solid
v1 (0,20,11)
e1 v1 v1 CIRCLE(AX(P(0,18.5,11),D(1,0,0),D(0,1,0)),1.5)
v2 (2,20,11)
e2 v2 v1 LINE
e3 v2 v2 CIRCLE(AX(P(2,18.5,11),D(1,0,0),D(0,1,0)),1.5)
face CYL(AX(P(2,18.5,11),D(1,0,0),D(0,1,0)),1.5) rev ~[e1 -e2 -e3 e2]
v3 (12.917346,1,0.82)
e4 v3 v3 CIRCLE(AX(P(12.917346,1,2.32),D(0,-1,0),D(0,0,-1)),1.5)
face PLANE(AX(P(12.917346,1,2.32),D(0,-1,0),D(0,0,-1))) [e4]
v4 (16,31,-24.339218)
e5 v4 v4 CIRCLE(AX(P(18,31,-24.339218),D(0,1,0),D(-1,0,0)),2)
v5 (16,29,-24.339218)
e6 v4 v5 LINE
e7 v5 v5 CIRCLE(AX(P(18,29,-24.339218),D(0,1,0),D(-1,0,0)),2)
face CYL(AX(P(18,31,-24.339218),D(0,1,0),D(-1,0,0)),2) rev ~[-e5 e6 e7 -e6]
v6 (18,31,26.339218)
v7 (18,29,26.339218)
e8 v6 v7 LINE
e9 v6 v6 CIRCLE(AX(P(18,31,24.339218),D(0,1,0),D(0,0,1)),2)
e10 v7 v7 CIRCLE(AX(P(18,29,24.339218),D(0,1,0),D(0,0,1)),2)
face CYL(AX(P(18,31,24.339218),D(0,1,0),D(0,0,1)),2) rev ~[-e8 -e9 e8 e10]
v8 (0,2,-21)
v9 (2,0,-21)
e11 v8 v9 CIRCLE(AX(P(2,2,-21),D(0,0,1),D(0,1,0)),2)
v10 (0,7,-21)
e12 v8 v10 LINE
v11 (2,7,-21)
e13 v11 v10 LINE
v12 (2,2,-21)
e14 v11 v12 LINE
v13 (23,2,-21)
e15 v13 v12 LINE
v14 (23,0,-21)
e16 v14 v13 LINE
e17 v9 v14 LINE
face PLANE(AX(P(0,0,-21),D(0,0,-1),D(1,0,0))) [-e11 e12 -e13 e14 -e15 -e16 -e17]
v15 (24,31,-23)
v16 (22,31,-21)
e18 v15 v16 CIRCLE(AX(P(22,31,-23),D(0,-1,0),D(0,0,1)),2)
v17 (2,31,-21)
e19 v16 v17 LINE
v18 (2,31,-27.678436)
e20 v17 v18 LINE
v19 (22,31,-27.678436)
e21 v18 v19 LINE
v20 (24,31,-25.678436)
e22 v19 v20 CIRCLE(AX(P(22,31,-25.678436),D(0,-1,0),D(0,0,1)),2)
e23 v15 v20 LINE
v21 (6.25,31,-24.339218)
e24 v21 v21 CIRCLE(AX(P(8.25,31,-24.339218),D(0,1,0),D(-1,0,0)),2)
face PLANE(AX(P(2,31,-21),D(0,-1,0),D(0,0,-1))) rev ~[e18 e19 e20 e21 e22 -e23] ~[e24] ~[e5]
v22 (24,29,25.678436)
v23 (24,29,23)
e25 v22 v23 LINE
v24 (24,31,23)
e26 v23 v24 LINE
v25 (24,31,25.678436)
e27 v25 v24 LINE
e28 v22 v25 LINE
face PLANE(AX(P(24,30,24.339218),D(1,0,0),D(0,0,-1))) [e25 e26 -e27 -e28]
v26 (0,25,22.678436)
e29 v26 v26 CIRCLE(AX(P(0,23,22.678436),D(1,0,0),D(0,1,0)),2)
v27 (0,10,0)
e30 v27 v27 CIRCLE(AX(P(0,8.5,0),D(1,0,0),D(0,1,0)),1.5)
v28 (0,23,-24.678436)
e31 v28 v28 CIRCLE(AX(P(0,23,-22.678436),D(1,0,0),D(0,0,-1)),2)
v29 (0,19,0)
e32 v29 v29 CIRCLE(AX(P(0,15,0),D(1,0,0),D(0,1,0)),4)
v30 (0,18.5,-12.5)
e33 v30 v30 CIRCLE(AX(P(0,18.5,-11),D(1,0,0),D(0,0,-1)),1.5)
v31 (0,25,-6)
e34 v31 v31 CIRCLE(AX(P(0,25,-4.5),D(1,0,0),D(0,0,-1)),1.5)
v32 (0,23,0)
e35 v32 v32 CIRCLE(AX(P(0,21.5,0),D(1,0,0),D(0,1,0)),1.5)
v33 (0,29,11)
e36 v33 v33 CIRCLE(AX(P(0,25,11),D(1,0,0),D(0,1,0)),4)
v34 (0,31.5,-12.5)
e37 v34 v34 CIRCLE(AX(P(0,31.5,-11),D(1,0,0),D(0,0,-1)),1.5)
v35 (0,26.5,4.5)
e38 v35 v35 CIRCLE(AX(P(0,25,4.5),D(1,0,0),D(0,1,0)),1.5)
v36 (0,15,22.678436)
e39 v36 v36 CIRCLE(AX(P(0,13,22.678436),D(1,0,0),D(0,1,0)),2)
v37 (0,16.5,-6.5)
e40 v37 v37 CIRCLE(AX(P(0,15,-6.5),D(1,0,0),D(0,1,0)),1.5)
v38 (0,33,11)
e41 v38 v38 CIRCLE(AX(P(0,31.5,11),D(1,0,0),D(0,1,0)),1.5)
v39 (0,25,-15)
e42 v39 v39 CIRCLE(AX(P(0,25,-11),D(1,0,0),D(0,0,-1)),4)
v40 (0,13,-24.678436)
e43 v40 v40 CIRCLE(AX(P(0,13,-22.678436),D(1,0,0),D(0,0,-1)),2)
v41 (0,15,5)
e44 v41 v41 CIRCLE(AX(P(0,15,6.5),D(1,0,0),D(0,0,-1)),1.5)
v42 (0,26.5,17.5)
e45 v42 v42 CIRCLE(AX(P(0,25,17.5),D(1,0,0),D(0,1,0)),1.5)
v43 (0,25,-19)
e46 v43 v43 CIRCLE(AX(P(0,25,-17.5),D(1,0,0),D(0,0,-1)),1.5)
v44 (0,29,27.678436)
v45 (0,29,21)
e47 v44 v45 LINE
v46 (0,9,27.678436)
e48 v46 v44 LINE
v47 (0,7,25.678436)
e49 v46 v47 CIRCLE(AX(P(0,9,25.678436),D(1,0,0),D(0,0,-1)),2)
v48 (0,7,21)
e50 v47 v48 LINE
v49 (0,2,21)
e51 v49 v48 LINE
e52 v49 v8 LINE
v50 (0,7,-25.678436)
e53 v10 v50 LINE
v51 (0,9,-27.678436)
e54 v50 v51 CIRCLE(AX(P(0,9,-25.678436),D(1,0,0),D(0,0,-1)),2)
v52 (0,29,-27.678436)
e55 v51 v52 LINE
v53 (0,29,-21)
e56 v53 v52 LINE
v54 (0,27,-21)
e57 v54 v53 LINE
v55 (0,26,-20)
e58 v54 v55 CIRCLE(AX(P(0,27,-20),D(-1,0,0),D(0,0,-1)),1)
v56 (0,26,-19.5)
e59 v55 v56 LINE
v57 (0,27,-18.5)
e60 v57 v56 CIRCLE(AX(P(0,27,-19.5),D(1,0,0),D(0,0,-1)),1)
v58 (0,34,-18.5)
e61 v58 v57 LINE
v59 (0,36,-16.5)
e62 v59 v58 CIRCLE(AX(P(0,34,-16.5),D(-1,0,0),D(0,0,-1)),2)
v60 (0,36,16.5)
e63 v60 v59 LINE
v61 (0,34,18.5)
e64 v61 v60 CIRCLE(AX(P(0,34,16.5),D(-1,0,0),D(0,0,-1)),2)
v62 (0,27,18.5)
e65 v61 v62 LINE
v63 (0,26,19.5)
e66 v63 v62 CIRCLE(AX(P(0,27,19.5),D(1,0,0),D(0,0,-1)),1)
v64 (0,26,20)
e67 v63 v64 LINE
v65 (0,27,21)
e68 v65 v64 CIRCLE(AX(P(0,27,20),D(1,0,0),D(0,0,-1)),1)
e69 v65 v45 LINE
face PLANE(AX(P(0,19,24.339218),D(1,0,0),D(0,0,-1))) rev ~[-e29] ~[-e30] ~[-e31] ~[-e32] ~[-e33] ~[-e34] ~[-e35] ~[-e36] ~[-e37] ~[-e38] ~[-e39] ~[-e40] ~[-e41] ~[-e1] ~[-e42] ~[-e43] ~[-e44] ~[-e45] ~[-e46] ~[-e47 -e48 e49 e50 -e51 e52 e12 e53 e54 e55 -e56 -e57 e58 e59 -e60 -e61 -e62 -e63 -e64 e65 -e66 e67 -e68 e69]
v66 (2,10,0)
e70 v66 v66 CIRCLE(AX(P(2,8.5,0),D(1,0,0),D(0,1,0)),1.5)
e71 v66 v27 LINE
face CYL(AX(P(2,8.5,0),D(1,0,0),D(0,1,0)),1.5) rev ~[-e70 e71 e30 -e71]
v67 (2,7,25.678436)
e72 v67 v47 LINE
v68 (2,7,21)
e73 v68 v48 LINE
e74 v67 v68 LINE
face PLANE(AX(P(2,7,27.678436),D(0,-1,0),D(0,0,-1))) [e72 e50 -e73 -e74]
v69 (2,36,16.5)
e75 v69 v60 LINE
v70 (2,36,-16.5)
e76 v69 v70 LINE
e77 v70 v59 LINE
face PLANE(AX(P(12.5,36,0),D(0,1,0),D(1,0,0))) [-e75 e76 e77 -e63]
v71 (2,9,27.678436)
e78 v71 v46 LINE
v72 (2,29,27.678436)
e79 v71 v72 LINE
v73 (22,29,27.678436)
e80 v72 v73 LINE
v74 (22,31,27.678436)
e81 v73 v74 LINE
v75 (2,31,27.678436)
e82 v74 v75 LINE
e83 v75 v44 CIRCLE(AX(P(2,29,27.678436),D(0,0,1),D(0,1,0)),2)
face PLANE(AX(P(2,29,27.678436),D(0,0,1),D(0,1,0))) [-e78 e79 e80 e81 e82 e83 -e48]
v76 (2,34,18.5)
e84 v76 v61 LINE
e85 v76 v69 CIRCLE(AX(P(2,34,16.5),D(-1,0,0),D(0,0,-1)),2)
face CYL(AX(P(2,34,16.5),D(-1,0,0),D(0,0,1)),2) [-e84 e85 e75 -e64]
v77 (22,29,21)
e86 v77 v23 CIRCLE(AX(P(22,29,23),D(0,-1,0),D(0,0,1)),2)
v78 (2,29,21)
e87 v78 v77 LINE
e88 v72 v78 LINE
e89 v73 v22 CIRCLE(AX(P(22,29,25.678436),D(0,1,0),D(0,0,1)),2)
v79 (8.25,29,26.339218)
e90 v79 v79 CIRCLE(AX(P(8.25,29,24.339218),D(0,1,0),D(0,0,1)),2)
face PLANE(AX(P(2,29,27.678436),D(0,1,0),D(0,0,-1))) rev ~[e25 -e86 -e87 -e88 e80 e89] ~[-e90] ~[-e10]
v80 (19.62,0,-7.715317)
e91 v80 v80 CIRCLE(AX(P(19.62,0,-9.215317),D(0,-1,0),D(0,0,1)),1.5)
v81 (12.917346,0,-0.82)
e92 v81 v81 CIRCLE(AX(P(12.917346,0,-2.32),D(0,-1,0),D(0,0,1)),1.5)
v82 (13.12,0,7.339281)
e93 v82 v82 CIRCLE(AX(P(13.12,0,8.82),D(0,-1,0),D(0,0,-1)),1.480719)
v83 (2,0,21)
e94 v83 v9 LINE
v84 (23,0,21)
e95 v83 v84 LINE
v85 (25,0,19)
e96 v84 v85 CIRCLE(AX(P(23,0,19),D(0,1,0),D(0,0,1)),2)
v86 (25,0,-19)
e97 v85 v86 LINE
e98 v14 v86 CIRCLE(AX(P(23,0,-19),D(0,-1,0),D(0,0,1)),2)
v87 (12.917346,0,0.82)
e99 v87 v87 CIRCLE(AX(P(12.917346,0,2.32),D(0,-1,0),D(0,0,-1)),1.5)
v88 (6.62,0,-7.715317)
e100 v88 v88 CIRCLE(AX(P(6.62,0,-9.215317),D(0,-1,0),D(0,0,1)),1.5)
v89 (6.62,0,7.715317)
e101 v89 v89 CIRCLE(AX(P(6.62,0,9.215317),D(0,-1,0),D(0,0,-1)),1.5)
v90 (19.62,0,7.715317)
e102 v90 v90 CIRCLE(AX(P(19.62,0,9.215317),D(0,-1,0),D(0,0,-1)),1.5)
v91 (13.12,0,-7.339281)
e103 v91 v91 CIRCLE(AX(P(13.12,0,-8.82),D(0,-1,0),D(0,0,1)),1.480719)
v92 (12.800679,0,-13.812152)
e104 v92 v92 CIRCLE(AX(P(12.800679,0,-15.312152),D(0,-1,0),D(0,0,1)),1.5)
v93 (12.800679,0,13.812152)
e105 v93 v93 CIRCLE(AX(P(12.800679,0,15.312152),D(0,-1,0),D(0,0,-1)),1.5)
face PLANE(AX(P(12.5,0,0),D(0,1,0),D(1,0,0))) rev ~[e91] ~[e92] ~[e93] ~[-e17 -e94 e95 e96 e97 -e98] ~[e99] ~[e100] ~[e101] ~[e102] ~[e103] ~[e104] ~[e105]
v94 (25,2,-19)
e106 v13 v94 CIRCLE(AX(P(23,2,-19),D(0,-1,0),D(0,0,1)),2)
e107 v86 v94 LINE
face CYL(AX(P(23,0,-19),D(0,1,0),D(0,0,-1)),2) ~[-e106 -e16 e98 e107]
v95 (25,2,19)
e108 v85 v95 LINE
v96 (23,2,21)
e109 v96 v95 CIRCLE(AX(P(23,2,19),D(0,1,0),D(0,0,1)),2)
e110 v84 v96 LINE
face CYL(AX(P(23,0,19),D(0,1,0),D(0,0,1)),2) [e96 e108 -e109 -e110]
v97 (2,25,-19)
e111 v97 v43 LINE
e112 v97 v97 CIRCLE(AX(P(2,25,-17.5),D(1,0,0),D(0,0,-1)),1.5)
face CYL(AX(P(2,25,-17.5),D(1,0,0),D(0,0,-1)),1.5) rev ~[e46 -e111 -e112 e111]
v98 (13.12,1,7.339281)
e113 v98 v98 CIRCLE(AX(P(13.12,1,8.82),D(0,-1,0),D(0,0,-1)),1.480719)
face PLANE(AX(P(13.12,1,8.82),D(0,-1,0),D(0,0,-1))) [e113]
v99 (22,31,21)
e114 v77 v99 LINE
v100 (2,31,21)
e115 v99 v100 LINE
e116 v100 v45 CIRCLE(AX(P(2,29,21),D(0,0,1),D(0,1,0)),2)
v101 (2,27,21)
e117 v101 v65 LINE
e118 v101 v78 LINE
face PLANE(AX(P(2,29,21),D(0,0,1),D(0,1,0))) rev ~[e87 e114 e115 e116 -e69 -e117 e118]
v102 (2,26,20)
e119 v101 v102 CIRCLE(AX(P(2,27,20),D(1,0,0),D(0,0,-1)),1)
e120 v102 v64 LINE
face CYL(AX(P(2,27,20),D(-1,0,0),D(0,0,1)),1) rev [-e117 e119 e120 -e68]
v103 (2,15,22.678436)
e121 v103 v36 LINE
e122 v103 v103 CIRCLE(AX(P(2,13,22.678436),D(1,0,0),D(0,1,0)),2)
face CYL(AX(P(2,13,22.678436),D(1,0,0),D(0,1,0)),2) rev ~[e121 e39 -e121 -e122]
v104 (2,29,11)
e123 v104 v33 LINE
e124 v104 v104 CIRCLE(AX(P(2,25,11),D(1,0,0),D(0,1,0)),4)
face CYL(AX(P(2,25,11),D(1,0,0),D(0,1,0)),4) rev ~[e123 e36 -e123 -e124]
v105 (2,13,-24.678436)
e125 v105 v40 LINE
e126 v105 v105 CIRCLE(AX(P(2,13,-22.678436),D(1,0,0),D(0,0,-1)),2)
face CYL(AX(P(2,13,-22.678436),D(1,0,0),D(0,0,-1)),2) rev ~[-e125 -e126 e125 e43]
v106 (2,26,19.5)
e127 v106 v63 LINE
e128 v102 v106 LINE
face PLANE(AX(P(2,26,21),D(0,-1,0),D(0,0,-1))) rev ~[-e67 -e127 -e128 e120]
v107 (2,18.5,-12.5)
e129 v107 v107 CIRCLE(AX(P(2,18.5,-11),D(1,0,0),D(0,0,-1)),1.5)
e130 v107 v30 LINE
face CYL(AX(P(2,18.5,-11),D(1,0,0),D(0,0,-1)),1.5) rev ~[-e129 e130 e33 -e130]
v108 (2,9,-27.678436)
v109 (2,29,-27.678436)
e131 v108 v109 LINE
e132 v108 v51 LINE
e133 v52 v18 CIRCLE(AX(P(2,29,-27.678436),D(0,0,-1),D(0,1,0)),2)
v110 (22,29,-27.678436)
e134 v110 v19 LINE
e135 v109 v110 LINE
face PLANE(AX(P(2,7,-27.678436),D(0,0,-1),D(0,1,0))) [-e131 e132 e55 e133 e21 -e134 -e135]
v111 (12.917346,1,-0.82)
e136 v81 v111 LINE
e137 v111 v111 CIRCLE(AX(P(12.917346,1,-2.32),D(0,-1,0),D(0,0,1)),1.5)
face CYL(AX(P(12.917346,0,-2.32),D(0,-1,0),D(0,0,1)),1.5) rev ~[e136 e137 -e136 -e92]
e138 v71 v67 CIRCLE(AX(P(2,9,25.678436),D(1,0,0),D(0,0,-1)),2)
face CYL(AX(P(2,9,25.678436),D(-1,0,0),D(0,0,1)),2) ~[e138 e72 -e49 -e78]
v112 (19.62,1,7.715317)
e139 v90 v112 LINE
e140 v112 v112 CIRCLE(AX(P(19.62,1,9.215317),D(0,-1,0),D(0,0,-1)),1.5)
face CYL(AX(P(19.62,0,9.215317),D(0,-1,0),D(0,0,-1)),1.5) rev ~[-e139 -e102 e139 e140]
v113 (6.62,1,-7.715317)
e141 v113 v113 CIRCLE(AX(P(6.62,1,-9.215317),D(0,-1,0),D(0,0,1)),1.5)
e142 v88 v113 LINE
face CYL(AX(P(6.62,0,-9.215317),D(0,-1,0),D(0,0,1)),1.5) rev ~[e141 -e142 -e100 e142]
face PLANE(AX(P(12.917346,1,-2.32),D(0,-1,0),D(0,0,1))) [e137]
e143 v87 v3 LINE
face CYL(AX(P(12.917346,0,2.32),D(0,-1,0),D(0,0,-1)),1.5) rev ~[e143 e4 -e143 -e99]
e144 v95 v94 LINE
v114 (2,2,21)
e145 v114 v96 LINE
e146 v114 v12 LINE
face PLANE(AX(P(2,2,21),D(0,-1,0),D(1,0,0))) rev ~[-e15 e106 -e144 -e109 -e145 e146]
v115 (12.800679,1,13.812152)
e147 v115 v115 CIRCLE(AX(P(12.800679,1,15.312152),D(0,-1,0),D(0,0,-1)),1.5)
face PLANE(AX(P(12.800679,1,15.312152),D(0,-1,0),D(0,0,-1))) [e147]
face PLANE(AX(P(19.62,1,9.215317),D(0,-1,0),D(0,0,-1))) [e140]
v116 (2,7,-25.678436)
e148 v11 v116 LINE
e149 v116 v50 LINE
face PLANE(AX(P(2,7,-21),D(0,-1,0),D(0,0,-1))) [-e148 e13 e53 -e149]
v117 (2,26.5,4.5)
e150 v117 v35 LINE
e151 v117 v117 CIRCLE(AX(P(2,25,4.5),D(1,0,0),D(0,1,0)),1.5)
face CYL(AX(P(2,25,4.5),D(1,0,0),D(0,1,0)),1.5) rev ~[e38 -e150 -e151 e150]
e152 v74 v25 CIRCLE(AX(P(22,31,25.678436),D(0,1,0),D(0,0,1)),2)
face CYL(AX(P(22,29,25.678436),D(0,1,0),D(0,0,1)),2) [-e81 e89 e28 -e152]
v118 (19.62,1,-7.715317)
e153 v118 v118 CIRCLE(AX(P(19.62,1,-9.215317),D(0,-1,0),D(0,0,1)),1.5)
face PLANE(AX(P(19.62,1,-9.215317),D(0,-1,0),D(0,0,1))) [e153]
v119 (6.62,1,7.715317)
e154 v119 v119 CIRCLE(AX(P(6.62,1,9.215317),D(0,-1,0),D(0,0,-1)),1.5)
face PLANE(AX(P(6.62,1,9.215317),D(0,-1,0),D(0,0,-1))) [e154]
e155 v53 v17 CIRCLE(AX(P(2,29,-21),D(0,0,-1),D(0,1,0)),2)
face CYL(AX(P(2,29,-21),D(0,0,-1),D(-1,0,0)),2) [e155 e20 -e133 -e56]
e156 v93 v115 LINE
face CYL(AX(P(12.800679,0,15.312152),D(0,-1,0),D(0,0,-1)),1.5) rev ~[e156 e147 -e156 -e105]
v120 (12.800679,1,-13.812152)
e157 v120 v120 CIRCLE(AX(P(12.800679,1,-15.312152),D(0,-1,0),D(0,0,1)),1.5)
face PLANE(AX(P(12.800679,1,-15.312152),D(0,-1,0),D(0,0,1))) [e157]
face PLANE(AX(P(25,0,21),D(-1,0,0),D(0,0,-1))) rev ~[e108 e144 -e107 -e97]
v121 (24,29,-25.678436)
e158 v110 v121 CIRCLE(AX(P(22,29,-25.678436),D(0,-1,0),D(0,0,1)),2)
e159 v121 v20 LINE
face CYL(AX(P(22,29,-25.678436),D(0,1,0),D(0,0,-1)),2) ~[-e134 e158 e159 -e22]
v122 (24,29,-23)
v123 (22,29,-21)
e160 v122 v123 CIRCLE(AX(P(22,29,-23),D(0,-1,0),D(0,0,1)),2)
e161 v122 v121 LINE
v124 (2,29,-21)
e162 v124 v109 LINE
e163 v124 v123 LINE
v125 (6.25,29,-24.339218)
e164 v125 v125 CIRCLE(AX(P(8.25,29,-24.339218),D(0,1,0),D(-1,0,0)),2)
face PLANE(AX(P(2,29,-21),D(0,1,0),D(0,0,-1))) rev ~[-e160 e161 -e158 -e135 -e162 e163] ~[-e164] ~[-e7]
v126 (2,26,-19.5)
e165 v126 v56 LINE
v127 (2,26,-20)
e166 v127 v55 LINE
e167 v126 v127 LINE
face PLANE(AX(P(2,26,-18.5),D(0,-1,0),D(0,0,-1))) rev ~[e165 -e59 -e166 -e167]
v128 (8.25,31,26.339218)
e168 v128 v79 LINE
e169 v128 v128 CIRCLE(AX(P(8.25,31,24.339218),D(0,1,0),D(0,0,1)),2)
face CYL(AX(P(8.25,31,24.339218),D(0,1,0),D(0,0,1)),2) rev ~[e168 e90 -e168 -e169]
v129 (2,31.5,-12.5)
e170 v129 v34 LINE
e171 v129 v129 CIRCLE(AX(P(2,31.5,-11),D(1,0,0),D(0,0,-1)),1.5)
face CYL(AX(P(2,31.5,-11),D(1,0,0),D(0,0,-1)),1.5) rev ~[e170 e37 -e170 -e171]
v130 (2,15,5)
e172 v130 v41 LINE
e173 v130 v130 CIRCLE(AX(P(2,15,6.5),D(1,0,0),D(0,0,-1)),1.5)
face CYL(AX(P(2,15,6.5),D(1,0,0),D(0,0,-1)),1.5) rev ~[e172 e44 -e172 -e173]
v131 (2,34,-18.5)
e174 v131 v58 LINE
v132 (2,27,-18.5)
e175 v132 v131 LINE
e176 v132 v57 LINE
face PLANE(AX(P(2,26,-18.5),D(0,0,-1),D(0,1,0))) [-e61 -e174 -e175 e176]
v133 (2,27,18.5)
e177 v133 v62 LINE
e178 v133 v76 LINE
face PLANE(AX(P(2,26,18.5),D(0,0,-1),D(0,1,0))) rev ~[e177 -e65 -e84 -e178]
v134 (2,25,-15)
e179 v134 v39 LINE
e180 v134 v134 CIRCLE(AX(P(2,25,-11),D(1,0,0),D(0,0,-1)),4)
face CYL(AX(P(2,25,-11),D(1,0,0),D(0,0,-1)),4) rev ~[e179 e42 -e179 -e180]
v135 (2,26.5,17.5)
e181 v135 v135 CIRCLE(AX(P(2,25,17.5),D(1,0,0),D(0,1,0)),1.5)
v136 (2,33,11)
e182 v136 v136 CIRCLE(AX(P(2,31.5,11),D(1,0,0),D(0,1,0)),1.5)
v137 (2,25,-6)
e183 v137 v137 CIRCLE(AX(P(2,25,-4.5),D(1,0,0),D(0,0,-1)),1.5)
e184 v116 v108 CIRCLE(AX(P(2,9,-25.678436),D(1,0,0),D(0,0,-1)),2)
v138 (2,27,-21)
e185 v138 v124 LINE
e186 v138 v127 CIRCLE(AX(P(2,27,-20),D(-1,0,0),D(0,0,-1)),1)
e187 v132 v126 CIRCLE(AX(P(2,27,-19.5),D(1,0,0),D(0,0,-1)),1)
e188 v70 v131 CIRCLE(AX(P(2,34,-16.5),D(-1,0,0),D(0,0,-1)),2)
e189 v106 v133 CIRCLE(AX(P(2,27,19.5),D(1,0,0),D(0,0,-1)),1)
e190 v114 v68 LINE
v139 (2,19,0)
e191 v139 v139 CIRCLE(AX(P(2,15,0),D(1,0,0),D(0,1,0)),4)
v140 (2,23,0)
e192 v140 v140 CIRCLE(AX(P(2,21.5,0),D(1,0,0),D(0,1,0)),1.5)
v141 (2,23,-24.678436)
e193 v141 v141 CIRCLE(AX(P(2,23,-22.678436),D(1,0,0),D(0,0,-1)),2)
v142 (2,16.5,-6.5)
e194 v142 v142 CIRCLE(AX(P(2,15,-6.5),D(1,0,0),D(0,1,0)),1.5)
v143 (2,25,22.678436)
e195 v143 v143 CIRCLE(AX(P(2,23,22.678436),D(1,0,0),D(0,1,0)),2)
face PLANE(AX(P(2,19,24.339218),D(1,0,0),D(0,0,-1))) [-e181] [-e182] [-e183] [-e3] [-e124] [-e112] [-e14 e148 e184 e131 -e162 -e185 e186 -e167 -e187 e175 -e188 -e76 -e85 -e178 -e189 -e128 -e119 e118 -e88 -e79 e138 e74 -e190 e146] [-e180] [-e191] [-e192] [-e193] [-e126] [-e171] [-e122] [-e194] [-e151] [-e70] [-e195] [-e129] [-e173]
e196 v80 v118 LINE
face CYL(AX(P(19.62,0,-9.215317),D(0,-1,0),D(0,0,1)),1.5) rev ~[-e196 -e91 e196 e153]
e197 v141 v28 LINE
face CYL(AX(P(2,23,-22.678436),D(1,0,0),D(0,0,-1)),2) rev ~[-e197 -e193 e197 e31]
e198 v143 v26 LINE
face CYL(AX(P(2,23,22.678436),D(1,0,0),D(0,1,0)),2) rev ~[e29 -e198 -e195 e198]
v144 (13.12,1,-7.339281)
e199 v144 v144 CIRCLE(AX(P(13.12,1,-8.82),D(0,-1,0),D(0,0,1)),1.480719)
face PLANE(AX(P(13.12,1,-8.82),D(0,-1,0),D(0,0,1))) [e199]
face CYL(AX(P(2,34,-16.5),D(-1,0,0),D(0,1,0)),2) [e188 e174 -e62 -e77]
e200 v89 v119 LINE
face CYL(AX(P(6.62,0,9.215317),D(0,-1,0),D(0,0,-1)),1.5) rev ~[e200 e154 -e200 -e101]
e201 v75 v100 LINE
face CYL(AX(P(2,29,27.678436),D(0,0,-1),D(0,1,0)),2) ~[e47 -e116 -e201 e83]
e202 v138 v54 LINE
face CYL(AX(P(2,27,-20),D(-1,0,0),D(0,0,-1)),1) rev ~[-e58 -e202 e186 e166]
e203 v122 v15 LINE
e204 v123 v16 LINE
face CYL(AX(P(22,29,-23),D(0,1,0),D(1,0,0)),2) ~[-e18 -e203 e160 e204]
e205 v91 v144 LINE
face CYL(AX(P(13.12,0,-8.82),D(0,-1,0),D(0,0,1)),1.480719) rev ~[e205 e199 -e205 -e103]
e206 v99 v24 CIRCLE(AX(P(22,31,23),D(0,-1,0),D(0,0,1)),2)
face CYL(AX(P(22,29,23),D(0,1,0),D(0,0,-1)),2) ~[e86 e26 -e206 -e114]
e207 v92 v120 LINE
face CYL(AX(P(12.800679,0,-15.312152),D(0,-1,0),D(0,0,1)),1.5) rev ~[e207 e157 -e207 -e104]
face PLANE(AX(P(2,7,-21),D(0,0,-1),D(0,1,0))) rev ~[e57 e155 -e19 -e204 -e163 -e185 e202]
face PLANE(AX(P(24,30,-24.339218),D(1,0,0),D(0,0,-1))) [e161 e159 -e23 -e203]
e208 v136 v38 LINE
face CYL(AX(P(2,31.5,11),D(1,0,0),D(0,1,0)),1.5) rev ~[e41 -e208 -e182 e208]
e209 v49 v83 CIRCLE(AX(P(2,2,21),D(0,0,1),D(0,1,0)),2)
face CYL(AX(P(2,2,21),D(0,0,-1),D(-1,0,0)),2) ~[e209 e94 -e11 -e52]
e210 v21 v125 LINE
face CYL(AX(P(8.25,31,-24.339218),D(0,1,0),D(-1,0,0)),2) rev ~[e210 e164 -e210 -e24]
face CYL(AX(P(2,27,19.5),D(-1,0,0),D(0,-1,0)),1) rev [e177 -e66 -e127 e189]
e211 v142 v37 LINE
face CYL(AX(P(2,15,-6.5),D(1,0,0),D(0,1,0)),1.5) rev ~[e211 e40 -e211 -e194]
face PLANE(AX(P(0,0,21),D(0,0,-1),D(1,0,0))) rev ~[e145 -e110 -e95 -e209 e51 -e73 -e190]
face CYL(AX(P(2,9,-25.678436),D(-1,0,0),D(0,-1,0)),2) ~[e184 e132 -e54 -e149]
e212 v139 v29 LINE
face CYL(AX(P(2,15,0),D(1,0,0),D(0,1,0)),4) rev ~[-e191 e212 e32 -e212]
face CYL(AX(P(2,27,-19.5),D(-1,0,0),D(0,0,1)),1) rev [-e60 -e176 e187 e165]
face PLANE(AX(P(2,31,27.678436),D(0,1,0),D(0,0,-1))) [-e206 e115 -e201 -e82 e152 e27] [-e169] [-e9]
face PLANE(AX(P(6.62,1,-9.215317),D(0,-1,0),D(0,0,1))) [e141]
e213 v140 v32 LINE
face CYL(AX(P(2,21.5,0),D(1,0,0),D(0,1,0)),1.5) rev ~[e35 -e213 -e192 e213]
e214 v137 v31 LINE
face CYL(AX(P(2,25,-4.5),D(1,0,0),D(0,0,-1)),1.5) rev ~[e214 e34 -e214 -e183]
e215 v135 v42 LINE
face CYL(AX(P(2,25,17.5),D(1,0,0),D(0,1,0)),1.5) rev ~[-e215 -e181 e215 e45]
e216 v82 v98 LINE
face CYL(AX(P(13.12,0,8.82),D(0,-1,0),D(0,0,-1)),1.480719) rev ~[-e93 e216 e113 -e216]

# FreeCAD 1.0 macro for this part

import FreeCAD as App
import Part
import Sketcher
Q = App.Units.Quantity


def edges_at(feature, points):
    """Names of the edges that pass closest to the given points."""
    edges = feature.Shape.Edges
    near = lambda p: min(range(len(edges)), key=lambda i: edges[i].distToShape(Part.Vertex(*p))[0])
    return sorted({f"Edge{near(p) + 1}" for p in points})

doc = App.newDocument("Part")
params = doc.addObject("Spreadsheet::Sheet", "Params")
for row, (alias, value) in enumerate([
    ("sketch1_width", "25 mm"),
    ("sketch1_height", "42 mm"),
    ("pad1_length", "36 mm"),
    ("sketch2_width", "23 mm"),
    ("sketch2_height", "34 mm"),
    ("fillet_radius", "2 mm"),
    ("sketch3_width", "10 mm"),
    ("sketch3_height", "2.5 mm"),
    ("pocket2_length", "36 mm"),
    ("fillet2_radius", "1 mm"),
    ("fillet3_radius", "2 mm"),
    ("sketch4_width", "24 mm"),
    ("pad2_length", "2 mm"),
    ("fillet4_radius", "2 mm"),
    ("sketch5_width", "2 mm"),
    ("pad3_length", "22 mm"),
    ("fillet5_radius", "2 mm"),
    ("fillet6_radius", "2 mm"),
    ("fillet7_radius", "2 mm"),
    ("fillet8_radius", "1 mm"),
    ("sketch6_diameter", "4 mm"),
    ("sketch6_diameter2", "8 mm"),
    ("sketch6_diameter3", "3 mm"),
    ("pocket3_length", "22 mm"),
    ("sketch7_diameter", "4 mm"),
    ("pocket4_length", "22 mm"),
    ("sketch8_diameter", "3 mm"),
    ("pocket5_length", "1 mm"),
], start=1):
    params.set(f"A{row}", alias)
    params.set(f"B{row}", "=" + value)
    params.setAlias(f"B{row}", alias)

body = doc.addObject("PartDesign::Body", "Body")

# Sketch on XZ plane
sketch1 = body.newObject("Sketcher::SketchObject", "Sketch")
sketch1.AttachmentSupport = (doc.getObject("XZ_Plane"), [""])
sketch1.MapMode = "FlatFace"
sketch1.addGeometry(Part.LineSegment(App.Vector(0, -21, 0), App.Vector(0, 21, 0)), False)
sketch1.addGeometry(Part.LineSegment(App.Vector(0, 21, 0), App.Vector(25, 21, 0)), False)
sketch1.addGeometry(Part.LineSegment(App.Vector(25, 21, 0), App.Vector(25, -21, 0)), False)
sketch1.addGeometry(Part.LineSegment(App.Vector(25, -21, 0), App.Vector(0, -21, 0)), False)
sketch1.addConstraint(Sketcher.Constraint("Coincident", 0, 2, 1, 1))
sketch1.addConstraint(Sketcher.Constraint("Coincident", 1, 2, 2, 1))
sketch1.addConstraint(Sketcher.Constraint("Coincident", 2, 2, 3, 1))
sketch1.addConstraint(Sketcher.Constraint("Coincident", 3, 2, 0, 1))
sketch1.addConstraint(Sketcher.Constraint("Vertical", 0))
sketch1.addConstraint(Sketcher.Constraint("Horizontal", 1))
sketch1.addConstraint(Sketcher.Constraint("Vertical", 2))
sketch1.addConstraint(Sketcher.Constraint("Horizontal", 3))
sketch1.addConstraint(Sketcher.Constraint("Symmetric", 0, 2, 3, 2, -1, 1))
sketch1.addConstraint(Sketcher.Constraint("DistanceX", 1, 1, 1, 2, Q("25 mm")))
sketch1.addConstraint(Sketcher.Constraint("DistanceY", 0, 1, 0, 2, Q("42 mm")))
sketch1.setExpression("Constraints[9]", "Params.sketch1_width")
sketch1.setExpression("Constraints[10]", "Params.sketch1_height")
pad1 = body.newObject("PartDesign::Pad", "Pad")
pad1.Profile = sketch1
pad1.setExpression("Length", "Params.pad1_length")
pad1.Reversed = True

# Sketch on XY plane
sketch2 = body.newObject("Sketcher::SketchObject", "Sketch001")
sketch2.AttachmentSupport = (doc.getObject("XY_Plane"), [""])
sketch2.MapMode = "FlatFace"
sketch2.AttachmentOffset = App.Placement(App.Vector(0, 0, 21), App.Rotation())
sketch2.addGeometry(Part.LineSegment(App.Vector(2, 36, 0), App.Vector(2, 2, 0)), False)
sketch2.addGeometry(Part.LineSegment(App.Vector(2, 2, 0), App.Vector(25, 2, 0)), False)
sketch2.addGeometry(Part.LineSegment(App.Vector(25, 2, 0), App.Vector(25, 36, 0)), False)
sketch2.addGeometry(Part.LineSegment(App.Vector(25, 36, 0), App.Vector(2, 36, 0)), False)
sketch2.addConstraint(Sketcher.Constraint("Coincident", 0, 2, 1, 1))
sketch2.addConstraint(Sketcher.Constraint("Coincident", 1, 2, 2, 1))
sketch2.addConstraint(Sketcher.Constraint("Coincident", 2, 2, 3, 1))
sketch2.addConstraint(Sketcher.Constraint("Coincident", 3, 2, 0, 1))
sketch2.addConstraint(Sketcher.Constraint("Vertical", 0))
sketch2.addConstraint(Sketcher.Constraint("Horizontal", 1))
sketch2.addConstraint(Sketcher.Constraint("Vertical", 2))
sketch2.addConstraint(Sketcher.Constraint("Horizontal", 3))
sketch2.addConstraint(Sketcher.Constraint("DistanceX", 1, 1, 1, 2, Q("23 mm")))
sketch2.addConstraint(Sketcher.Constraint("DistanceY", 0, 2, 0, 1, Q("34 mm")))
sketch2.addConstraint(Sketcher.Constraint("DistanceX", -1, 1, 0, 2, Q("2 mm")))
sketch2.addConstraint(Sketcher.Constraint("DistanceY", -1, 1, 0, 2, Q("2 mm")))
sketch2.setExpression("Constraints[8]", "Params.sketch2_width")
sketch2.setExpression("Constraints[9]", "Params.sketch2_height")
pocket1 = body.newObject("PartDesign::Pocket", "Pocket")
pocket1.Profile = sketch2
pocket1.Type = "ThroughAll"
doc.recompute()

fillet = body.newObject("PartDesign::Fillet", "Fillet")
fillet.Base = (pocket1, edges_at(pocket1, [(25, 1, 21), (25, 1, -21)]))
fillet.setExpression("Radius", "Params.fillet_radius")

# Sketch on YZ plane
sketch3 = body.newObject("Sketcher::SketchObject", "Sketch002")
sketch3.AttachmentSupport = (doc.getObject("YZ_Plane"), [""])
sketch3.MapMode = "FlatFace"
sketch3.AttachmentOffset = App.Placement(App.Vector(0, 0, 2), App.Rotation())
sketch3.addGeometry(Part.LineSegment(App.Vector(36, 21, 0), App.Vector(26, 21, 0)), False)
sketch3.addGeometry(Part.LineSegment(App.Vector(26, 21, 0), App.Vector(26, 18.5, 0)), False)
sketch3.addGeometry(Part.LineSegment(App.Vector(26, 18.5, 0), App.Vector(36, 18.5, 0)), False)
sketch3.addGeometry(Part.LineSegment(App.Vector(36, 18.5, 0), App.Vector(36, 21, 0)), False)
sketch3.addGeometry(Part.LineSegment(App.Vector(36, -18.5, 0), App.Vector(26, -18.5, 0)), False)
sketch3.addGeometry(Part.LineSegment(App.Vector(26, -18.5, 0), App.Vector(26, -21, 0)), False)
sketch3.addGeometry(Part.LineSegment(App.Vector(26, -21, 0), App.Vector(36, -21, 0)), False)
sketch3.addGeometry(Part.LineSegment(App.Vector(36, -21, 0), App.Vector(36, -18.5, 0)), False)
sketch3.addConstraint(Sketcher.Constraint("Coincident", 0, 2, 1, 1))
sketch3.addConstraint(Sketcher.Constraint("Coincident", 1, 2, 2, 1))
sketch3.addConstraint(Sketcher.Constraint("Coincident", 2, 2, 3, 1))
sketch3.addConstraint(Sketcher.Constraint("Coincident", 3, 2, 0, 1))
sketch3.addConstraint(Sketcher.Constraint("Coincident", 4, 2, 5, 1))
sketch3.addConstraint(Sketcher.Constraint("Coincident", 5, 2, 6, 1))
sketch3.addConstraint(Sketcher.Constraint("Coincident", 6, 2, 7, 1))
sketch3.addConstraint(Sketcher.Constraint("Coincident", 7, 2, 4, 1))
sketch3.addConstraint(Sketcher.Constraint("Horizontal", 0))
sketch3.addConstraint(Sketcher.Constraint("Vertical", 1))
sketch3.addConstraint(Sketcher.Constraint("Horizontal", 2))
sketch3.addConstraint(Sketcher.Constraint("Vertical", 3))
sketch3.addConstraint(Sketcher.Constraint("Horizontal", 4))
sketch3.addConstraint(Sketcher.Constraint("Vertical", 5))
sketch3.addConstraint(Sketcher.Constraint("Horizontal", 6))
sketch3.addConstraint(Sketcher.Constraint("Vertical", 7))
sketch3.addConstraint(Sketcher.Constraint("Symmetric", 1, 2, 4, 2, -1))
sketch3.addConstraint(Sketcher.Constraint("Symmetric", 3, 2, 6, 2, -1))
sketch3.addConstraint(Sketcher.Constraint("DistanceX", 0, 2, 0, 1, Q("10 mm")))
sketch3.addConstraint(Sketcher.Constraint("DistanceY", 1, 2, 1, 1, Q("2.5 mm")))
sketch3.addConstraint(Sketcher.Constraint("DistanceX", -1, 1, 0, 2, Q("26 mm")))
sketch3.addConstraint(Sketcher.Constraint("DistanceY", -1, 1, 0, 2, Q("21 mm")))
sketch3.setExpression("Constraints[18]", "Params.sketch3_width")
sketch3.setExpression("Constraints[19]", "Params.sketch3_height")
pocket2 = body.newObject("PartDesign::Pocket", "Pocket001")
pocket2.Profile = sketch3
pocket2.setExpression("Length", "Params.pocket2_length")
doc.recompute()

fillet2 = body.newObject("PartDesign::Fillet", "Fillet001")
fillet2.Base = (pocket2, edges_at(pocket2, [(1, 26, 18.5), (1, 26, -18.5)]))
fillet2.setExpression("Radius", "Params.fillet2_radius")
doc.recompute()

fillet3 = body.newObject("PartDesign::Fillet", "Fillet002")
fillet3.Base = (fillet2, edges_at(fillet2, [(1, 36, 18.5), (1, 36, -18.5)]))
fillet3.setExpression("Radius", "Params.fillet3_radius")

# Sketch on YZ plane
sketch4 = body.newObject("Sketcher::SketchObject", "Sketch003")
sketch4.AttachmentSupport = (doc.getObject("YZ_Plane"), [""])
sketch4.MapMode = "FlatFace"
sketch4.AttachmentOffset = App.Placement(App.Vector(0, 0, 2), App.Rotation())
sketch4.addGeometry(Part.LineSegment(App.Vector(31, 27.678436, 0), App.Vector(7, 27.678436, 0)), False)
sketch4.addGeometry(Part.LineSegment(App.Vector(7, 27.678436, 0), App.Vector(7, 21, 0)), False)
sketch4.addGeometry(Part.LineSegment(App.Vector(7, 21, 0), App.Vector(31, 21, 0)), False)
sketch4.addGeometry(Part.LineSegment(App.Vector(31, 21, 0), App.Vector(31, 27.678436, 0)), False)
sketch4.addGeometry(Part.LineSegment(App.Vector(31, -21, 0), App.Vector(7, -21, 0)), False)
sketch4.addGeometry(Part.LineSegment(App.Vector(7, -21, 0), App.Vector(7, -27.678436, 0)), False)
sketch4.addGeometry(Part.LineSegment(App.Vector(7, -27.678436, 0), App.Vector(31, -27.678436, 0)), False)
sketch4.addGeometry(Part.LineSegment(App.Vector(31, -27.678436, 0), App.Vector(31, -21, 0)), False)
sketch4.addConstraint(Sketcher.Constraint("Coincident", 0, 2, 1, 1))
sketch4.addConstraint(Sketcher.Constraint("Coincident", 1, 2, 2, 1))
sketch4.addConstraint(Sketcher.Constraint("Coincident", 2, 2, 3, 1))
sketch4.addConstraint(Sketcher.Constraint("Coincident", 3, 2, 0, 1))
sketch4.addConstraint(Sketcher.Constraint("Coincident", 4, 2, 5, 1))
sketch4.addConstraint(Sketcher.Constraint("Coincident", 5, 2, 6, 1))
sketch4.addConstraint(Sketcher.Constraint("Coincident", 6, 2, 7, 1))
sketch4.addConstraint(Sketcher.Constraint("Coincident", 7, 2, 4, 1))
sketch4.addConstraint(Sketcher.Constraint("Horizontal", 0))
sketch4.addConstraint(Sketcher.Constraint("Vertical", 1))
sketch4.addConstraint(Sketcher.Constraint("Horizontal", 2))
sketch4.addConstraint(Sketcher.Constraint("Vertical", 3))
sketch4.addConstraint(Sketcher.Constraint("Horizontal", 4))
sketch4.addConstraint(Sketcher.Constraint("Vertical", 5))
sketch4.addConstraint(Sketcher.Constraint("Horizontal", 6))
sketch4.addConstraint(Sketcher.Constraint("Vertical", 7))
sketch4.addConstraint(Sketcher.Constraint("Symmetric", 1, 2, 4, 2, -1))
sketch4.addConstraint(Sketcher.Constraint("Symmetric", 3, 2, 6, 2, -1))
sketch4.addConstraint(Sketcher.Constraint("DistanceX", 0, 2, 0, 1, Q("24 mm")))
sketch4.addConstraint(Sketcher.Constraint("DistanceX", -1, 1, 0, 2, Q("7 mm")))
sketch4.addConstraint(Sketcher.Constraint("DistanceY", -1, 1, 1, 2, Q("21 mm")))
sketch4.addConstraint(Sketcher.Constraint("DistanceY", 1, 2, 1, 1, Q("6.678436 mm")))
sketch4.setExpression("Constraints[18]", "Params.sketch4_width")
pad2 = body.newObject("PartDesign::Pad", "Pad001")
pad2.Profile = sketch4
pad2.setExpression("Length", "Params.pad2_length")
pad2.Reversed = True
doc.recompute()

fillet4 = body.newObject("PartDesign::Fillet", "Fillet003")
fillet4.Base = (pad2, edges_at(pad2, [(1, 7, 27.678), (1, 7, -27.678)]))
fillet4.setExpression("Radius", "Params.fillet4_radius")

# Sketch on YZ plane
sketch5 = body.newObject("Sketcher::SketchObject", "Sketch004")
sketch5.AttachmentSupport = (doc.getObject("YZ_Plane"), [""])
sketch5.MapMode = "FlatFace"
sketch5.AttachmentOffset = App.Placement(App.Vector(0, 0, 2), App.Rotation())
sketch5.addGeometry(Part.LineSegment(App.Vector(31, 27.678436, 0), App.Vector(29, 27.678436, 0)), False)
sketch5.addGeometry(Part.LineSegment(App.Vector(29, 27.678436, 0), App.Vector(29, 21, 0)), False)
sketch5.addGeometry(Part.LineSegment(App.Vector(29, 21, 0), App.Vector(31, 21, 0)), False)
sketch5.addGeometry(Part.LineSegment(App.Vector(31, 21, 0), App.Vector(31, 27.678436, 0)), False)
sketch5.addGeometry(Part.LineSegment(App.Vector(31, -21, 0), App.Vector(29, -21, 0)), False)
sketch5.addGeometry(Part.LineSegment(App.Vector(29, -21, 0), App.Vector(29, -27.678436, 0)), False)
sketch5.addGeometry(Part.LineSegment(App.Vector(29, -27.678436, 0), App.Vector(31, -27.678436, 0)), False)
sketch5.addGeometry(Part.LineSegment(App.Vector(31, -27.678436, 0), App.Vector(31, -21, 0)), False)
sketch5.addConstraint(Sketcher.Constraint("Coincident", 0, 2, 1, 1))
sketch5.addConstraint(Sketcher.Constraint("Coincident", 1, 2, 2, 1))
sketch5.addConstraint(Sketcher.Constraint("Coincident", 2, 2, 3, 1))
sketch5.addConstraint(Sketcher.Constraint("Coincident", 3, 2, 0, 1))
sketch5.addConstraint(Sketcher.Constraint("Coincident", 4, 2, 5, 1))
sketch5.addConstraint(Sketcher.Constraint("Coincident", 5, 2, 6, 1))
sketch5.addConstraint(Sketcher.Constraint("Coincident", 6, 2, 7, 1))
sketch5.addConstraint(Sketcher.Constraint("Coincident", 7, 2, 4, 1))
sketch5.addConstraint(Sketcher.Constraint("Horizontal", 0))
sketch5.addConstraint(Sketcher.Constraint("Vertical", 1))
sketch5.addConstraint(Sketcher.Constraint("Horizontal", 2))
sketch5.addConstraint(Sketcher.Constraint("Vertical", 3))
sketch5.addConstraint(Sketcher.Constraint("Horizontal", 4))
sketch5.addConstraint(Sketcher.Constraint("Vertical", 5))
sketch5.addConstraint(Sketcher.Constraint("Horizontal", 6))
sketch5.addConstraint(Sketcher.Constraint("Vertical", 7))
sketch5.addConstraint(Sketcher.Constraint("Symmetric", 1, 2, 4, 2, -1))
sketch5.addConstraint(Sketcher.Constraint("Symmetric", 3, 2, 6, 2, -1))
sketch5.addConstraint(Sketcher.Constraint("DistanceX", 0, 2, 0, 1, Q("2 mm")))
sketch5.addConstraint(Sketcher.Constraint("DistanceX", -1, 1, 0, 2, Q("29 mm")))
sketch5.addConstraint(Sketcher.Constraint("DistanceY", -1, 1, 1, 2, Q("21 mm")))
sketch5.addConstraint(Sketcher.Constraint("DistanceY", 1, 2, 1, 1, Q("6.678436 mm")))
sketch5.setExpression("Constraints[18]", "Params.sketch5_width")
pad3 = body.newObject("PartDesign::Pad", "Pad002")
pad3.Profile = sketch5
pad3.setExpression("Length", "Params.pad3_length")
doc.recompute()

fillet5 = body.newObject("PartDesign::Fillet", "Fillet004")
fillet5.Base = (pad3, edges_at(pad3, [
    (24, 30, 27.678),
    (24, 30, 21),
    (24, 30, -21),
    (24, 30, -27.678),
]))
fillet5.setExpression("Radius", "Params.fillet5_radius")
doc.recompute()

fillet6 = body.newObject("PartDesign::Fillet", "Fillet005")
fillet6.Base = (fillet5, edges_at(fillet5, [(0, 31, 24.339), (0, 31, -24.339)]))
fillet6.setExpression("Radius", "Params.fillet6_radius")
doc.recompute()

fillet7 = body.newObject("PartDesign::Fillet", "Fillet006")
fillet7.Base = (fillet6, edges_at(fillet6, [(0, 0, 0)]))
fillet7.setExpression("Radius", "Params.fillet7_radius")
doc.recompute()

fillet8 = body.newObject("PartDesign::Fillet", "Fillet007")
fillet8.Base = (fillet7, edges_at(fillet7, [(1, 26, 21), (1, 26, -21)]))
fillet8.setExpression("Radius", "Params.fillet8_radius")

# Sketch on YZ plane
sketch6 = body.newObject("Sketcher::SketchObject", "Sketch005")
sketch6.AttachmentSupport = (doc.getObject("YZ_Plane"), [""])
sketch6.MapMode = "FlatFace"
sketch6.AttachmentOffset = App.Placement(App.Vector(0, 0, 2), App.Rotation())
sketch6.addGeometry(Part.Circle(App.Vector(13, 22.678436, 0), App.Vector(0, 0, 1), 2), False)
sketch6.addGeometry(Part.Circle(App.Vector(23, 22.678436, 0), App.Vector(0, 0, 1), 2), False)
sketch6.addGeometry(Part.Circle(App.Vector(13, -22.678436, 0), App.Vector(0, 0, 1), 2), False)
sketch6.addGeometry(Part.Circle(App.Vector(23, -22.678436, 0), App.Vector(0, 0, 1), 2), False)
sketch6.addGeometry(Part.Circle(App.Vector(25, 11, 0), App.Vector(0, 0, 1), 4), False)
sketch6.addGeometry(Part.Circle(App.Vector(31.5, 11, 0), App.Vector(0, 0, 1), 1.5), False)
sketch6.addGeometry(Part.Circle(App.Vector(18.5, 11, 0), App.Vector(0, 0, 1), 1.5), False)
sketch6.addGeometry(Part.Circle(App.Vector(25, 17.5, 0), App.Vector(0, 0, 1), 1.5), False)
sketch6.addGeometry(Part.Circle(App.Vector(25, 4.5, 0), App.Vector(0, 0, 1), 1.5), False)
sketch6.addGeometry(Part.Circle(App.Vector(18.5, -11, 0), App.Vector(0, 0, 1), 1.5), False)
sketch6.addGeometry(Part.Circle(App.Vector(25, -4.5, 0), App.Vector(0, 0, 1), 1.5), False)
sketch6.addGeometry(Part.Circle(App.Vector(25, -17.5, 0), App.Vector(0, 0, 1), 1.5), False)
sketch6.addGeometry(Part.Circle(App.Vector(31.5, -11, 0), App.Vector(0, 0, 1), 1.5), False)
sketch6.addGeometry(Part.Circle(App.Vector(25, -11, 0), App.Vector(0, 0, 1), 4), False)
sketch6.addGeometry(Part.Circle(App.Vector(15, 0, 0), App.Vector(0, 0, 1), 4), False)
sketch6.addGeometry(Part.Circle(App.Vector(15, -6.5, 0), App.Vector(0, 0, 1), 1.5), False)
sketch6.addGeometry(Part.Circle(App.Vector(8.5, 0, 0), App.Vector(0, 0, 1), 1.5), False)
sketch6.addGeometry(Part.Circle(App.Vector(21.5, 0, 0), App.Vector(0, 0, 1), 1.5), False)
sketch6.addGeometry(Part.Circle(App.Vector(15, 6.5, 0), App.Vector(0, 0, 1), 1.5), False)
sketch6.addConstraint(Sketcher.Constraint("Equal", 0, 1))
sketch6.addConstraint(Sketcher.Constraint("Equal", 1, 2))
sketch6.addConstraint(Sketcher.Constraint("Equal", 2, 3))
sketch6.addConstraint(Sketcher.Constraint("Equal", 5, 6))
sketch6.addConstraint(Sketcher.Constraint("Equal", 6, 7))
sketch6.addConstraint(Sketcher.Constraint("Equal", 7, 8))
sketch6.addConstraint(Sketcher.Constraint("Equal", 8, 9))
sketch6.addConstraint(Sketcher.Constraint("Equal", 9, 10))
sketch6.addConstraint(Sketcher.Constraint("Equal", 10, 11))
sketch6.addConstraint(Sketcher.Constraint("Equal", 11, 12))
sketch6.addConstraint(Sketcher.Constraint("Equal", 4, 13))
sketch6.addConstraint(Sketcher.Constraint("Equal", 13, 14))
sketch6.addConstraint(Sketcher.Constraint("Equal", 12, 15))
sketch6.addConstraint(Sketcher.Constraint("Equal", 15, 16))
sketch6.addConstraint(Sketcher.Constraint("Equal", 16, 17))
sketch6.addConstraint(Sketcher.Constraint("Equal", 17, 18))
sketch6.addConstraint(Sketcher.Constraint("Symmetric", 0, 3, 2, 3, -1))
sketch6.addConstraint(Sketcher.Constraint("Symmetric", 1, 3, 3, 3, -1))
sketch6.addConstraint(Sketcher.Constraint("Symmetric", 6, 3, 9, 3, -1))
sketch6.addConstraint(Sketcher.Constraint("Symmetric", 8, 3, 10, 3, -1))
sketch6.addConstraint(Sketcher.Constraint("Symmetric", 7, 3, 11, 3, -1))
sketch6.addConstraint(Sketcher.Constraint("Symmetric", 5, 3, 12, 3, -1))
sketch6.addConstraint(Sketcher.Constraint("Symmetric", 4, 3, 13, 3, -1))
sketch6.addConstraint(Sketcher.Constraint("Symmetric", 15, 3, 18, 3, -1))
sketch6.addConstraint(Sketcher.Constraint("PointOnObject", 14, 3, -1))
sketch6.addConstraint(Sketcher.Constraint("PointOnObject", 16, 3, -1))
sketch6.addConstraint(Sketcher.Constraint("PointOnObject", 17, 3, -1))
sketch6.addConstraint(Sketcher.Constraint("Horizontal", 0, 3, 1, 3))
sketch6.addConstraint(Sketcher.Constraint("Horizontal", 4, 3, 5, 3))
sketch6.addConstraint(Sketcher.Constraint("Horizontal", 5, 3, 6, 3))
sketch6.addConstraint(Sketcher.Constraint("Vertical", 4, 3, 7, 3))
sketch6.addConstraint(Sketcher.Constraint("Vertical", 7, 3, 8, 3))
sketch6.addConstraint(Sketcher.Constraint("Vertical", 14, 3, 15, 3))
sketch6.addConstraint(Sketcher.Constraint("Diameter", 0, Q("4 mm")))
sketch6.addConstraint(Sketcher.Constraint("Diameter", 4, Q("8 mm")))
sketch6.addConstraint(Sketcher.Constraint("Diameter", 5, Q("3 mm")))
sketch6.addConstraint(Sketcher.Constraint("DistanceX", -1, 1, 0, 3, Q("13 mm")))
sketch6.addConstraint(Sketcher.Constraint("DistanceX", -1, 1, 1, 3, Q("23 mm")))
sketch6.addConstraint(Sketcher.Constraint("DistanceX", -1, 1, 4, 3, Q("25 mm")))
sketch6.addConstraint(Sketcher.Constraint("DistanceY", -1, 1, 4, 3, Q("11 mm")))
sketch6.addConstraint(Sketcher.Constraint("DistanceX", -1, 1, 14, 3, Q("15 mm")))
sketch6.addConstraint(Sketcher.Constraint("DistanceX", 6, 3, 5, 3, Q("13 mm")))
sketch6.addConstraint(Sketcher.Constraint("DistanceY", 8, 3, 7, 3, Q("13 mm")))
sketch6.addConstraint(Sketcher.Constraint("DistanceY", 10, 3, 8, 3, Q("9 mm")))
sketch6.addConstraint(Sketcher.Constraint("DistanceY", 15, 3, 10, 3, Q("2 mm")))
sketch6.addConstraint(Sketcher.Constraint("DistanceX", 16, 3, 6, 3, Q("10 mm")))
sketch6.addConstraint(Sketcher.Constraint("DistanceX", 6, 3, 17, 3, Q("3 mm")))
sketch6.addConstraint(Sketcher.Constraint("DistanceX", -1, 1, 5, 3, Q("31.5 mm")))
sketch6.addConstraint(Sketcher.Constraint("DistanceY", -1, 1, 0, 3, Q("22.678436 mm")))
sketch6.setExpression("Constraints[33]", "Params.sketch6_diameter")
sketch6.setExpression("Constraints[34]", "Params.sketch6_diameter2")
sketch6.setExpression("Constraints[35]", "Params.sketch6_diameter3")
pocket3 = body.newObject("PartDesign::Pocket", "Pocket002")
pocket3.Profile = sketch6
pocket3.setExpression("Length", "Params.pocket3_length")

# Sketch on XZ plane
sketch7 = body.newObject("Sketcher::SketchObject", "Sketch006")
sketch7.AttachmentSupport = (doc.getObject("XZ_Plane"), [""])
sketch7.MapMode = "FlatFace"
sketch7.AttachmentOffset = App.Placement(App.Vector(0, 0, -31), App.Rotation())
sketch7.addGeometry(Part.Circle(App.Vector(18, 24.339218, 0), App.Vector(0, 0, 1), 2), False)
sketch7.addGeometry(Part.Circle(App.Vector(8.25, 24.339218, 0), App.Vector(0, 0, 1), 2), False)
sketch7.addGeometry(Part.Circle(App.Vector(18, -24.339218, 0), App.Vector(0, 0, 1), 2), False)
sketch7.addGeometry(Part.Circle(App.Vector(8.25, -24.339218, 0), App.Vector(0, 0, 1), 2), False)
sketch7.addConstraint(Sketcher.Constraint("Equal", 0, 1))
sketch7.addConstraint(Sketcher.Constraint("Equal", 1, 2))
sketch7.addConstraint(Sketcher.Constraint("Equal", 2, 3))
sketch7.addConstraint(Sketcher.Constraint("Symmetric", 0, 3, 2, 3, -1))
sketch7.addConstraint(Sketcher.Constraint("Symmetric", 1, 3, 3, 3, -1))
sketch7.addConstraint(Sketcher.Constraint("Horizontal", 0, 3, 1, 3))
sketch7.addConstraint(Sketcher.Constraint("Diameter", 0, Q("4 mm")))
sketch7.addConstraint(Sketcher.Constraint("DistanceX", -1, 1, 0, 3, Q("18 mm")))
sketch7.addConstraint(Sketcher.Constraint("DistanceX", -1, 1, 1, 3, Q("8.25 mm")))
sketch7.addConstraint(Sketcher.Constraint("DistanceY", -1, 1, 0, 3, Q("24.339218 mm")))
sketch7.setExpression("Constraints[6]", "Params.sketch7_diameter")
pocket4 = body.newObject("PartDesign::Pocket", "Pocket003")
pocket4.Profile = sketch7
pocket4.setExpression("Length", "Params.pocket4_length")
pocket4.Reversed = True

# Sketch on XZ plane
sketch8 = body.newObject("Sketcher::SketchObject", "Sketch007")
sketch8.AttachmentSupport = (doc.getObject("XZ_Plane"), [""])
sketch8.MapMode = "FlatFace"
sketch8.addGeometry(Part.Circle(App.Vector(13.12, 8.82, 0), App.Vector(0, 0, 1), 1.480719), False)
sketch8.addGeometry(Part.Circle(App.Vector(19.62, 9.215317, 0), App.Vector(0, 0, 1), 1.5), False)
sketch8.addGeometry(Part.Circle(App.Vector(6.62, 9.215317, 0), App.Vector(0, 0, 1), 1.5), False)
sketch8.addGeometry(Part.Circle(App.Vector(12.800679, 15.312152, 0), App.Vector(0, 0, 1), 1.5), False)
sketch8.addGeometry(Part.Circle(App.Vector(12.917346, 2.32, 0), App.Vector(0, 0, 1), 1.5), False)
sketch8.addGeometry(Part.Circle(App.Vector(12.917346, -2.32, 0), App.Vector(0, 0, 1), 1.5), False)
sketch8.addGeometry(Part.Circle(App.Vector(19.62, -9.215317, 0), App.Vector(0, 0, 1), 1.5), False)
sketch8.addGeometry(Part.Circle(App.Vector(13.12, -8.82, 0), App.Vector(0, 0, 1), 1.480719), False)
sketch8.addGeometry(Part.Circle(App.Vector(6.62, -9.215317, 0), App.Vector(0, 0, 1), 1.5), False)
sketch8.addGeometry(Part.Circle(App.Vector(12.800679, -15.312152, 0), App.Vector(0, 0, 1), 1.5), False)
sketch8.addConstraint(Sketcher.Constraint("Equal", 1, 2))
sketch8.addConstraint(Sketcher.Constraint("Equal", 2, 3))
sketch8.addConstraint(Sketcher.Constraint("Equal", 3, 4))
sketch8.addConstraint(Sketcher.Constraint("Equal", 4, 5))
sketch8.addConstraint(Sketcher.Constraint("Equal", 5, 6))
sketch8.addConstraint(Sketcher.Constraint("Equal", 0, 7))
sketch8.addConstraint(Sketcher.Constraint("Equal", 6, 8))
sketch8.addConstraint(Sketcher.Constraint("Equal", 8, 9))
sketch8.addConstraint(Sketcher.Constraint("Symmetric", 4, 3, 5, 3, -1))
sketch8.addConstraint(Sketcher.Constraint("Symmetric", 1, 3, 6, 3, -1))
sketch8.addConstraint(Sketcher.Constraint("Symmetric", 0, 3, 7, 3, -1))
sketch8.addConstraint(Sketcher.Constraint("Symmetric", 2, 3, 8, 3, -1))
sketch8.addConstraint(Sketcher.Constraint("Symmetric", 3, 3, 9, 3, -1))
sketch8.addConstraint(Sketcher.Constraint("Horizontal", 1, 3, 2, 3))
sketch8.addConstraint(Sketcher.Constraint("Diameter", 1, Q("3 mm")))
sketch8.addConstraint(Sketcher.Constraint("DistanceX", 2, 3, 1, 3, Q("13 mm")))
sketch8.addConstraint(Sketcher.Constraint("DistanceX", 0, 3, 1, 3, Q("6.5 mm")))
sketch8.addConstraint(Sketcher.Constraint("DistanceY", 4, 3, 0, 3, Q("6.5 mm")))
sketch8.addConstraint(Sketcher.Constraint("DistanceX", -1, 1, 0, 3, Q("13.12 mm")))
sketch8.addConstraint(Sketcher.Constraint("DistanceY", -1, 1, 0, 3, Q("8.82 mm")))
sketch8.addConstraint(Sketcher.Constraint("Diameter", 0, Q("2.961437 mm")))
sketch8.addConstraint(Sketcher.Constraint("DistanceX", -1, 1, 3, 3, Q("12.800679 mm")))
sketch8.addConstraint(Sketcher.Constraint("DistanceY", -1, 1, 3, 3, Q("15.312152 mm")))
sketch8.addConstraint(Sketcher.Constraint("DistanceY", -1, 1, 1, 3, Q("9.215317 mm")))
sketch8.addConstraint(Sketcher.Constraint("DistanceX", -1, 1, 4, 3, Q("12.917346 mm")))
sketch8.setExpression("Constraints[14]", "Params.sketch8_diameter")
pocket5 = body.newObject("PartDesign::Pocket", "Pocket004")
pocket5.Profile = sketch8
pocket5.setExpression("Length", "Params.pocket5_length")

doc.recompute()
